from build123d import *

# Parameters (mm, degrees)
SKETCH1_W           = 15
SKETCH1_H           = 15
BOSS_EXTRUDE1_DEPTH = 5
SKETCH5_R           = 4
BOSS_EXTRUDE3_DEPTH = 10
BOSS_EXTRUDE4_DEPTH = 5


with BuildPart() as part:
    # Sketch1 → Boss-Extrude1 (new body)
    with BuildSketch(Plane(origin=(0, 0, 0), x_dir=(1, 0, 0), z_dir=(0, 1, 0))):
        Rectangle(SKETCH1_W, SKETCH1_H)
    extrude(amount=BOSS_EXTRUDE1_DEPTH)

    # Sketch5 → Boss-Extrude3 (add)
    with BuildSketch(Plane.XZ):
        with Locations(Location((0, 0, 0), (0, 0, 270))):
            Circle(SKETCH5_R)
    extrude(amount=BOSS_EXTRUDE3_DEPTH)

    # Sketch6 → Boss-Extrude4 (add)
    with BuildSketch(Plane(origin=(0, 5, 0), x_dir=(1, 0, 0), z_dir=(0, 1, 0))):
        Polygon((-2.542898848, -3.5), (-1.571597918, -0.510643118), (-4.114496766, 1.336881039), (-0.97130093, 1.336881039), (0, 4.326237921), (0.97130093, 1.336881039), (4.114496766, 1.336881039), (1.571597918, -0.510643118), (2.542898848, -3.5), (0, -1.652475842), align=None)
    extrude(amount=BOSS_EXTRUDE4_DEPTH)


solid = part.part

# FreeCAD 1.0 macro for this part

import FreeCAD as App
import Part
import Sketcher
Q = App.Units.Quantity

doc = App.newDocument("Part")
body = doc.addObject("PartDesign::Body", "Body")

# Sketch on XZ plane
sketch1 = body.newObject("Sketcher::SketchObject", "Sketch")
sketch1.AttachmentSupport = (doc.getObject("XZ_Plane"), [""])
sketch1.MapMode = "FlatFace"
sketch1.addGeometry([
    Part.LineSegment(App.Vector(-7.5, -7.5, 0), App.Vector(-7.5, 7.5, 0)),
    Part.LineSegment(App.Vector(-7.5, 7.5, 0), App.Vector(7.5, 7.5, 0)),
    Part.LineSegment(App.Vector(7.5, 7.5, 0), App.Vector(7.5, -7.5, 0)),
    Part.LineSegment(App.Vector(7.5, -7.5, 0), App.Vector(-7.5, -7.5, 0)),
], False)
sketch1.addConstraint([
    Sketcher.Constraint("Coincident", 0, 2, 1, 1),
    Sketcher.Constraint("Coincident", 1, 2, 2, 1),
    Sketcher.Constraint("Coincident", 2, 2, 3, 1),
    Sketcher.Constraint("Coincident", 3, 2, 0, 1),
    Sketcher.Constraint("Vertical", 0),
    Sketcher.Constraint("Horizontal", 1),
    Sketcher.Constraint("Vertical", 2),
    Sketcher.Constraint("Horizontal", 3),
    Sketcher.Constraint("Symmetric", 0, 2, 2, 2, -1, 1),
    Sketcher.Constraint("Equal", 3, 0),
    Sketcher.Constraint("DistanceX", 1, 1, 1, 2, Q("15 mm")),
])
pad1 = body.newObject("PartDesign::Pad", "Pad")
pad1.Profile = sketch1
pad1.Length = 5
pad1.Reversed = True

# Sketch on XZ plane
sketch2 = body.newObject("Sketcher::SketchObject", "Sketch001")
sketch2.AttachmentSupport = (doc.getObject("XZ_Plane"), [""])
sketch2.MapMode = "FlatFace"
sketch2.addGeometry(Part.Circle(App.Vector(0, 0, 0), App.Vector(0, 0, 1), 4), False)
sketch2.addConstraint([
    Sketcher.Constraint("Coincident", 0, 3, -1, 1),
    Sketcher.Constraint("Diameter", 0, Q("8 mm")),
])
pad2 = body.newObject("PartDesign::Pad", "Pad001")
pad2.Profile = sketch2
pad2.Length = 10

# Sketch on XZ plane
sketch3 = body.newObject("Sketcher::SketchObject", "Sketch002")
sketch3.AttachmentSupport = (doc.getObject("XZ_Plane"), [""])
sketch3.MapMode = "FlatFace"
sketch3.AttachmentOffset = App.Placement(App.Vector(0, 0, -5), App.Rotation())
sketch3.addGeometry([
    Part.LineSegment(App.Vector(-1.571598, 0.510643, 0), App.Vector(-2.542899, 3.5, 0)),  # 0
    Part.LineSegment(App.Vector(-2.542899, 3.5, 0), App.Vector(0, 1.652476, 0)),  # 1
    Part.LineSegment(App.Vector(0, 1.652476, 0), App.Vector(2.542899, 3.5, 0)),  # 2
    Part.LineSegment(App.Vector(2.542899, 3.5, 0), App.Vector(1.571598, 0.510643, 0)),  # 3
    Part.LineSegment(App.Vector(1.571598, 0.510643, 0), App.Vector(4.114497, -1.336881, 0)),  # 4
    Part.LineSegment(App.Vector(4.114497, -1.336881, 0), App.Vector(0.971301, -1.336881, 0)),  # 5
    Part.LineSegment(App.Vector(0.971301, -1.336881, 0), App.Vector(0, -4.326238, 0)),  # 6
    Part.LineSegment(App.Vector(0, -4.326238, 0), App.Vector(-0.971301, -1.336881, 0)),  # 7
    Part.LineSegment(App.Vector(-0.971301, -1.336881, 0), App.Vector(-4.114497, -1.336881, 0)),  # 8
    Part.LineSegment(App.Vector(-4.114497, -1.336881, 0), App.Vector(-1.571598, 0.510643, 0)),  # 9
], False)
sketch3.addConstraint([
    Sketcher.Constraint("Coincident", 0, 2, 1, 1),
    Sketcher.Constraint("Coincident", 1, 2, 2, 1),
    Sketcher.Constraint("Coincident", 2, 2, 3, 1),
    Sketcher.Constraint("Coincident", 3, 2, 4, 1),
    Sketcher.Constraint("Coincident", 4, 2, 5, 1),
    Sketcher.Constraint("Coincident", 5, 2, 6, 1),
    Sketcher.Constraint("Coincident", 6, 2, 7, 1),
    Sketcher.Constraint("Coincident", 7, 2, 8, 1),
    Sketcher.Constraint("Coincident", 8, 2, 9, 1),
    Sketcher.Constraint("Coincident", 9, 2, 0, 1),
    Sketcher.Constraint("Horizontal", 5),
    Sketcher.Constraint("Horizontal", 8),
    Sketcher.Constraint("Symmetric", 0, 2, 2, 2, -2),
    Sketcher.Constraint("Symmetric", 5, 2, 7, 2, -2),
    Sketcher.Constraint("Symmetric", 3, 2, 9, 2, -2),
    Sketcher.Constraint("PointOnObject", 1, 2, -2),
    Sketcher.Constraint("PointOnObject", 6, 2, -2),
    Sketcher.Constraint("Parallel", 1, 4),
    Sketcher.Constraint("Parallel", 3, 6),
    Sketcher.Constraint("Parallel", 2, 9),
    Sketcher.Constraint("Equal", 0, 1),
    Sketcher.Constraint("Equal", 3, 4),
    Sketcher.Constraint("Equal", 4, 6),
    Sketcher.Constraint("Angle", 0, Q("108 deg")),
    Sketcher.Constraint("Angle", 1, Q("-36 deg")),
    Sketcher.Constraint("DistanceY", -1, 1, 0, 2, Q("3.5 mm")),
    Sketcher.Constraint("DistanceX", 0, 2, -1, 1, Q("2.542899 mm")),
])
pad3 = body.newObject("PartDesign::Pad", "Pad002")
pad3.Profile = sketch3
pad3.Length = 5
pad3.Reversed = True

doc.recompute()
